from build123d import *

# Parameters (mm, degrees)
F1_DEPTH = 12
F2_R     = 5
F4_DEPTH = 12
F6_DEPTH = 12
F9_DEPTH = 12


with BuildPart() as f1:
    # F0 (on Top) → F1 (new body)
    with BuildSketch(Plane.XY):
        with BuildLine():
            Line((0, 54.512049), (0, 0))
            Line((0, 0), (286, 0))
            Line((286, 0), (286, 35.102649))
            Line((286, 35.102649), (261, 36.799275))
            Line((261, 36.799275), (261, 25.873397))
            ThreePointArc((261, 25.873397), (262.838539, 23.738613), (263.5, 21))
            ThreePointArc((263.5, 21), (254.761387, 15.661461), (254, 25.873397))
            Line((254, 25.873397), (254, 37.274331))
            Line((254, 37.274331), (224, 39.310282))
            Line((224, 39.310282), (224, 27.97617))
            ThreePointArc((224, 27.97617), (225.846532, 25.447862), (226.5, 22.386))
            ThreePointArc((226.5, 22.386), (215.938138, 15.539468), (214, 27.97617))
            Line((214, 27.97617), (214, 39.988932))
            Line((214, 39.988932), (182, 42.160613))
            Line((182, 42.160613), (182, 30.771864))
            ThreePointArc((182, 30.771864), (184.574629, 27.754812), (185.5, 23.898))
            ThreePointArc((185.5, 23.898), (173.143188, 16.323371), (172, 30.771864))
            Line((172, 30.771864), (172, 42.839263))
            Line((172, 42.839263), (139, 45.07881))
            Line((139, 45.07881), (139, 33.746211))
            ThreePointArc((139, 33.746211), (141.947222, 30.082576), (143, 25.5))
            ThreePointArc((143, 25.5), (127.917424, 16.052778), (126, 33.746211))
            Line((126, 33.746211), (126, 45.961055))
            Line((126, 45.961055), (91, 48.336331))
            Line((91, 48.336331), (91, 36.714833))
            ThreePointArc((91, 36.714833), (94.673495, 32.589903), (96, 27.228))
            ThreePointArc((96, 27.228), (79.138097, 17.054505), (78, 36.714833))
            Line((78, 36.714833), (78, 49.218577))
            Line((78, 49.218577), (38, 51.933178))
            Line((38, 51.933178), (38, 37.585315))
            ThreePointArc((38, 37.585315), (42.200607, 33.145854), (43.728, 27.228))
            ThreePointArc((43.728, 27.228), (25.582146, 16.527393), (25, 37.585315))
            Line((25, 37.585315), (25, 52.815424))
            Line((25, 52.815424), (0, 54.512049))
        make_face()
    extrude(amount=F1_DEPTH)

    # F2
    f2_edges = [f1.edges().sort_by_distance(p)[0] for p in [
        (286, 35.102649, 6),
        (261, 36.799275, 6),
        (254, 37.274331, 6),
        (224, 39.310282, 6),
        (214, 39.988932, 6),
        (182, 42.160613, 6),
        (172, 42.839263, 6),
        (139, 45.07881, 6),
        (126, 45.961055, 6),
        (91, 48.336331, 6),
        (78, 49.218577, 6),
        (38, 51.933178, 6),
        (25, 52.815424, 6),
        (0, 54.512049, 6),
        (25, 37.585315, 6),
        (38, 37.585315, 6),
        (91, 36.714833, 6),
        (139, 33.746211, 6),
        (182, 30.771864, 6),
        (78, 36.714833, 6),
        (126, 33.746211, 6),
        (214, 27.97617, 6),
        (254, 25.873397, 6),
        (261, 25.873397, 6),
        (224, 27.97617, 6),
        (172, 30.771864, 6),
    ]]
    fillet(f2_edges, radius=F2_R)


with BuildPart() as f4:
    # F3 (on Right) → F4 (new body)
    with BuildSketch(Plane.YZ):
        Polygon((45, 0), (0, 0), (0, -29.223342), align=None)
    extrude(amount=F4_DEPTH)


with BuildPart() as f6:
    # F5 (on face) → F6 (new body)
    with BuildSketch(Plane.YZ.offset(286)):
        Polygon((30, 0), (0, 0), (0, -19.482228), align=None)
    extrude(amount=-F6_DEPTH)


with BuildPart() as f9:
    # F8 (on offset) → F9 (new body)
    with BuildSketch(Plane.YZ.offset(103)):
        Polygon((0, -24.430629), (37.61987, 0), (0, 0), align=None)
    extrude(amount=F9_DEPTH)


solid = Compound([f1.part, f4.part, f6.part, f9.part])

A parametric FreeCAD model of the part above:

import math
import FreeCAD as App
import Part
import Sketcher
Q = App.Units.Quantity


def edges_at(feature, points):
    """Names of the edges that pass closest to the given points."""
    edges = feature.Shape.Edges
    near = lambda p: min(range(len(edges)), key=lambda i: edges[i].distToShape(Part.Vertex(*p))[0])
    return sorted({f"Edge{near(p) + 1}" for p in points})

doc = App.newDocument("Part")
body = doc.addObject("PartDesign::Body", "Body")

sketch1 = body.newObject("Sketcher::SketchObject", "Sketch")
sketch1.AttachmentSupport = (doc.getObject("XY_Plane"), [""])
sketch1.MapMode = "FlatFace"
sketch1.addGeometry([
    Part.LineSegment(App.Vector(0, 55, 0), App.Vector(0, 0, 0)),
    Part.LineSegment(App.Vector(0, 0, 0), App.Vector(286, 0, 0)),
    Part.LineSegment(App.Vector(286, 0, 0), App.Vector(286, 35, 0)),
    Part.LineSegment(App.Vector(286, 35, 0), App.Vector(261, 37, 0)),
    Part.LineSegment(App.Vector(261, 37, 0), App.Vector(261, 26, 0)),
    Part.ArcOfCircle(Part.Circle(App.Vector(258, 21, 0), App.Vector(0, 0, 1), 6), math.radians(0), math.radians(54)),
    Part.ArcOfCircle(Part.Circle(App.Vector(258, 21, 0), App.Vector(0, 0, 1), 6), math.radians(126), math.radians(360)),
    Part.LineSegment(App.Vector(254, 26, 0), App.Vector(254, 37, 0)),
    Part.LineSegment(App.Vector(254, 37, 0), App.Vector(224, 39, 0)),
    Part.LineSegment(App.Vector(224, 39, 0), App.Vector(224, 28, 0)),
    Part.ArcOfCircle(Part.Circle(App.Vector(219, 22, 0), App.Vector(0, 0, 1), 8), math.radians(0), math.radians(48)),
    Part.ArcOfCircle(Part.Circle(App.Vector(219, 22, 0), App.Vector(0, 0, 1), 8), math.radians(132), math.radians(360)),
    Part.LineSegment(App.Vector(214, 28, 0), App.Vector(214, 40, 0)),
    Part.LineSegment(App.Vector(214, 40, 0), App.Vector(182, 42, 0)),
    Part.LineSegment(App.Vector(182, 42, 0), App.Vector(182, 31, 0)),
    Part.ArcOfCircle(Part.Circle(App.Vector(177, 24, 0), App.Vector(0, 0, 1), 9), math.radians(0), math.radians(54)),
    Part.ArcOfCircle(Part.Circle(App.Vector(177, 24, 0), App.Vector(0, 0, 1), 9), math.radians(126), math.radians(360)),
    Part.LineSegment(App.Vector(172, 31, 0), App.Vector(172, 43, 0)),
    Part.LineSegment(App.Vector(172, 43, 0), App.Vector(139, 45, 0)),
    Part.LineSegment(App.Vector(139, 45, 0), App.Vector(139, 34, 0)),
    Part.ArcOfCircle(Part.Circle(App.Vector(133, 26, 0), App.Vector(0, 0, 1), 10), math.radians(0), math.radians(52)),
    Part.ArcOfCircle(Part.Circle(App.Vector(132, 25, 0), App.Vector(0, 0, 1), 11), math.radians(128), math.radians(360)),
    Part.LineSegment(App.Vector(126, 34, 0), App.Vector(126, 46, 0)),
    Part.LineSegment(App.Vector(126, 46, 0), App.Vector(91, 48, 0)),
    Part.LineSegment(App.Vector(91, 48, 0), App.Vector(91, 37, 0)),
    Part.ArcOfCircle(Part.Circle(App.Vector(85, 27, 0), App.Vector(0, 0, 1), 11), math.radians(0), math.radians(56)),
    Part.ArcOfCircle(Part.Circle(App.Vector(84, 27, 0), App.Vector(0, 0, 1), 12), math.radians(124), math.radians(360)),
    Part.LineSegment(App.Vector(78, 37, 0), App.Vector(78, 49, 0)),
    Part.LineSegment(App.Vector(78, 49, 0), App.Vector(38, 52, 0)),
    Part.LineSegment(App.Vector(38, 52, 0), App.Vector(38, 38, 0)),
    Part.ArcOfCircle(Part.Circle(App.Vector(32, 27, 0), App.Vector(0, 0, 1), 12), math.radians(0), math.radians(58)),
    Part.ArcOfCircle(Part.Circle(App.Vector(32, 27, 0), App.Vector(0, 0, 1), 12), math.radians(122), math.radians(360)),
    Part.LineSegment(App.Vector(25, 38, 0), App.Vector(25, 53, 0)),
    Part.LineSegment(App.Vector(25, 53, 0), App.Vector(0, 55, 0)),
], False)
sketch1.addConstraint([
    Sketcher.Constraint("Coincident", 0, 2, 1, 1),
    Sketcher.Constraint("Coincident", 1, 2, 2, 1),
    Sketcher.Constraint("Coincident", 2, 2, 3, 1),
    Sketcher.Constraint("Coincident", 3, 2, 4, 1),
    Sketcher.Constraint("Coincident", 4, 2, 5, 2),
    Sketcher.Constraint("Tangent", 5, 1, 6, 2),
    Sketcher.Constraint("Coincident", 6, 1, 7, 1),
    Sketcher.Constraint("Coincident", 7, 2, 8, 1),
    Sketcher.Constraint("Coincident", 8, 2, 9, 1),
    Sketcher.Constraint("Coincident", 9, 2, 10, 2),
    Sketcher.Constraint("Tangent", 10, 1, 11, 2),
    Sketcher.Constraint("Coincident", 11, 1, 12, 1),
    Sketcher.Constraint("Coincident", 12, 2, 13, 1),
    Sketcher.Constraint("Coincident", 13, 2, 14, 1),
    Sketcher.Constraint("Coincident", 14, 2, 15, 2),
    Sketcher.Constraint("Tangent", 15, 1, 16, 2),
    Sketcher.Constraint("Coincident", 16, 1, 17, 1),
    Sketcher.Constraint("Coincident", 17, 2, 18, 1),
    Sketcher.Constraint("Coincident", 18, 2, 19, 1),
    Sketcher.Constraint("Coincident", 19, 2, 20, 2),
    Sketcher.Constraint("Tangent", 20, 1, 21, 2),
    Sketcher.Constraint("Coincident", 21, 1, 22, 1),
    Sketcher.Constraint("Coincident", 22, 2, 23, 1),
    Sketcher.Constraint("Coincident", 23, 2, 24, 1),
    Sketcher.Constraint("Coincident", 24, 2, 25, 2),
    Sketcher.Constraint("Tangent", 25, 1, 26, 2),
    Sketcher.Constraint("Coincident", 26, 1, 27, 1),
    Sketcher.Constraint("Coincident", 27, 2, 28, 1),
    Sketcher.Constraint("Coincident", 28, 2, 29, 1),
    Sketcher.Constraint("Coincident", 29, 2, 30, 2),
    Sketcher.Constraint("Tangent", 30, 1, 31, 2),
    Sketcher.Constraint("Coincident", 31, 1, 32, 1),
    Sketcher.Constraint("Coincident", 32, 2, 33, 1),
    Sketcher.Constraint("Coincident", 33, 2, 0, 1),
    Sketcher.Constraint("Vertical", 0),
    Sketcher.Constraint("Horizontal", 1),
    Sketcher.Constraint("Vertical", 2),
    Sketcher.Constraint("Vertical", 4),
    Sketcher.Constraint("Vertical", 7),
    Sketcher.Constraint("Vertical", 9),
    Sketcher.Constraint("Vertical", 12),
    Sketcher.Constraint("Vertical", 14),
    Sketcher.Constraint("Vertical", 17),
    Sketcher.Constraint("Vertical", 19),
    Sketcher.Constraint("Vertical", 22),
    Sketcher.Constraint("Vertical", 24),
    Sketcher.Constraint("Vertical", 27),
    Sketcher.Constraint("Vertical", 29),
    Sketcher.Constraint("Vertical", 32),
    Sketcher.Constraint("Coincident", 0, 2, -1, 1),
    Sketcher.Constraint("Equal", 5, 6),
    Sketcher.Constraint("Equal", 10, 11),
    Sketcher.Constraint("Equal", 15, 16),
    Sketcher.Constraint("Equal", 25, 26),
    Sketcher.Constraint("Parallel", 3, 8),
    Sketcher.Constraint("Parallel", 8, 13),
    Sketcher.Constraint("Parallel", 13, 18),
    Sketcher.Constraint("Parallel", 18, 23),
    Sketcher.Constraint("Parallel", 23, 28),
    Sketcher.Constraint("Parallel", 28, 33),
    Sketcher.Constraint("Horizontal", 26, 3, 30, 3),
    Sketcher.Constraint("Horizontal", 6, 3, 5, 1),
    Sketcher.Constraint("Horizontal", 4, 2, 6, 1),
    Sketcher.Constraint("Horizontal", 11, 3, 10, 1),
    Sketcher.Constraint("Horizontal", 9, 2, 11, 1),
    Sketcher.Constraint("Horizontal", 16, 3, 15, 1),
    Sketcher.Constraint("Horizontal", 14, 2, 16, 1),
    Sketcher.Constraint("Horizontal", 21, 3, 20, 1),
    Sketcher.Constraint("Horizontal", 19, 2, 21, 1),
    Sketcher.Constraint("Horizontal", 31, 3, 25, 1),
    Sketcher.Constraint("Horizontal", 24, 2, 26, 1),
    Sketcher.Constraint("Horizontal", 25, 1, 30, 1),
    Sketcher.Constraint("Horizontal", 29, 2, 31, 1),
    Sketcher.Constraint("Equal", 3, 33),
    Sketcher.Constraint("Radius", 5, 5.999999),
    Sketcher.Constraint("Radius", 10, 7.500001),
    Sketcher.Constraint("Radius", 15, 8.5),
    Sketcher.Constraint("Radius", 21, 10.5),
    Sketcher.Constraint("Radius", 25, 11.499999),
    Sketcher.Constraint("DistanceX", 1, 1, 1, 2, 286.0),
    Sketcher.Constraint("DistanceY", -1, 1, 5, 3, 21.0),
    Sketcher.Constraint("DistanceX", -1, 1, 10, 3, 218.999999),
    Sketcher.Constraint("DistanceX", -1, 1, 15, 3, 177.0),
    Sketcher.Constraint("DistanceX", -1, 1, 3, 2, 261.0),
    Sketcher.Constraint("DistanceX", -1, 1, 6, 1, 254.0),
    Sketcher.Constraint("DistanceX", -1, 1, 8, 2, 224.0),
    Sketcher.Constraint("DistanceX", -1, 1, 13, 2, 182.0),
    Sketcher.Constraint("DistanceX", -1, 1, 18, 2, 139.0),
    Sketcher.Constraint("DistanceX", -1, 1, 20, 1, 143.0),
    Sketcher.Constraint("DistanceX", -1, 1, 21, 1, 126.0),
    Sketcher.Constraint("DistanceX", -1, 1, 23, 2, 91.0),
    Sketcher.Constraint("DistanceX", -1, 1, 25, 1, 96.0),
    Sketcher.Constraint("DistanceX", -1, 1, 28, 2, 38.0),
    Sketcher.Constraint("Radius", 31, 12.228),
    Sketcher.Constraint("DistanceX", 30, 3, 25, 3, 52.999999),
    Sketcher.Constraint("DistanceY", -1, 1, 20, 3, 25.500002),
    Sketcher.Constraint("DistanceY", 16, 3, 25, 3, 3.330001),
    Sketcher.Constraint("DistanceY", 17, 1, 17, 2, 12.067399),
    Sketcher.Constraint("DistanceY", 19, 2, 19, 1, 11.332599),
    Sketcher.Constraint("DistanceY", 24, 2, 24, 1, 11.621498),
    Sketcher.Constraint("DistanceY", -1, 1, 10, 3, 22.386),
    Sketcher.Constraint("DistanceY", -1, 1, 15, 3, 23.898),
    Sketcher.Constraint("DistanceY", 0, 2, 0, 1, 54.512049),
    Sketcher.Constraint("DistanceY", 2, 1, 2, 2, 35.102649),
    Sketcher.Constraint("DistanceY", 12, 1, 12, 2, 12.012762),
    Sketcher.Constraint("DistanceY", 7, 1, 7, 2, 11.400934),
    Sketcher.Constraint("DistanceY", 27, 1, 27, 2, 12.503744),
])
pad1 = body.newObject("PartDesign::Pad", "Pad")
pad1.Profile = sketch1
pad1.Length = 12
doc.recompute()

fillet = body.newObject("PartDesign::Fillet", "Fillet")
fillet.Base = (pad1, edges_at(pad1, [
    (286, 35.103, 6),
    (261, 36.799, 6),
    (254, 37.274, 6),
    (224, 39.31, 6),
    (214, 39.989, 6),
    (182, 42.161, 6),
    (172, 42.839, 6),
    (139, 45.079, 6),
    (126, 45.961, 6),
    (91, 48.336, 6),
    (78, 49.219, 6),
    (38, 51.933, 6),
    (25, 52.815, 6),
    (0, 54.512, 6),
    (25, 37.585, 6),
    (38, 37.585, 6),
    (91, 36.715, 6),
    (139, 33.746, 6),
    (182, 30.772, 6),
    (78, 36.715, 6),
    (126, 33.746, 6),
    (214, 27.976, 6),
    (254, 25.873, 6),
    (261, 25.873, 6),
    (224, 27.976, 6),
    (172, 30.772, 6),
]))
fillet.Radius = 5
body2 = doc.addObject("PartDesign::Body", "Body001")

sketch2 = body2.newObject("Sketcher::SketchObject", "Sketch001")
sketch2.AttachmentSupport = (doc.getObject("YZ_Plane001"), [""])
sketch2.MapMode = "FlatFace"
sketch2.addGeometry([
    Part.LineSegment(App.Vector(45, 0, 0), App.Vector(0, 0, 0)),
    Part.LineSegment(App.Vector(0, 0, 0), App.Vector(0, -29, 0)),
    Part.LineSegment(App.Vector(0, -29, 0), App.Vector(45, 0, 0)),
], False)
sketch2.addConstraint([
    Sketcher.Constraint("Coincident", 0, 2, 1, 1),
    Sketcher.Constraint("Coincident", 1, 2, 2, 1),
    Sketcher.Constraint("Coincident", 2, 2, 0, 1),
    Sketcher.Constraint("Horizontal", 0),
    Sketcher.Constraint("Vertical", 1),
    Sketcher.Constraint("Coincident", 0, 2, -1, 1),
    Sketcher.Constraint("DistanceX", 0, 2, 0, 1, 45.0),
    Sketcher.Constraint("Angle", 2, Q("33 deg")),
])
pad2 = body2.newObject("PartDesign::Pad", "Pad001")
pad2.Profile = sketch2
pad2.Length = 12
body3 = doc.addObject("PartDesign::Body", "Body002")

sketch3 = body3.newObject("Sketcher::SketchObject", "Sketch002")
sketch3.AttachmentSupport = (doc.getObject("YZ_Plane002"), [""])
sketch3.MapMode = "FlatFace"
sketch3.AttachmentOffset = App.Placement(App.Vector(0, 0, 286), App.Rotation())
sketch3.addGeometry([
    Part.LineSegment(App.Vector(30, 0, 0), App.Vector(0, 0, 0)),
    Part.LineSegment(App.Vector(0, 0, 0), App.Vector(0, -19, 0)),
    Part.LineSegment(App.Vector(0, -19, 0), App.Vector(30, 0, 0)),
], False)
sketch3.addConstraint([
    Sketcher.Constraint("Coincident", 0, 2, 1, 1),
    Sketcher.Constraint("Coincident", 1, 2, 2, 1),
    Sketcher.Constraint("Coincident", 2, 2, 0, 1),
    Sketcher.Constraint("Horizontal", 0),
    Sketcher.Constraint("Vertical", 1),
    Sketcher.Constraint("Coincident", 0, 2, -1, 1),
    Sketcher.Constraint("DistanceX", 0, 2, 0, 1, 30.0),
    Sketcher.Constraint("Angle", 2, Q("33 deg")),
])
pad3 = body3.newObject("PartDesign::Pad", "Pad002")
pad3.Profile = sketch3
pad3.Length = 12
pad3.Reversed = True
body4 = doc.addObject("PartDesign::Body", "Body003")

sketch4 = body4.newObject("Sketcher::SketchObject", "Sketch003")
sketch4.AttachmentSupport = (doc.getObject("YZ_Plane003"), [""])
sketch4.MapMode = "FlatFace"
sketch4.AttachmentOffset = App.Placement(App.Vector(0, 0, 103), App.Rotation())
sketch4.addGeometry([
    Part.LineSegment(App.Vector(0, -24, 0), App.Vector(38, 0, 0)),
    Part.LineSegment(App.Vector(38, 0, 0), App.Vector(0, 0, 0)),
    Part.LineSegment(App.Vector(0, 0, 0), App.Vector(0, -24, 0)),
], False)
sketch4.addConstraint([
    Sketcher.Constraint("Coincident", 0, 2, 1, 1),
    Sketcher.Constraint("Coincident", 1, 2, 2, 1),
    Sketcher.Constraint("Coincident", 2, 2, 0, 1),
    Sketcher.Constraint("Horizontal", 1),
    Sketcher.Constraint("Vertical", 2),
    Sketcher.Constraint("Coincident", 1, 2, -1, 1),
    Sketcher.Constraint("Angle", 0, Q("33 deg")),
    Sketcher.Constraint("DistanceX", 1, 2, 1, 1, 37.61987),
])
pad4 = body4.newObject("PartDesign::Pad", "Pad003")
pad4.Profile = sketch4
pad4.Length = 12

doc.recompute()
